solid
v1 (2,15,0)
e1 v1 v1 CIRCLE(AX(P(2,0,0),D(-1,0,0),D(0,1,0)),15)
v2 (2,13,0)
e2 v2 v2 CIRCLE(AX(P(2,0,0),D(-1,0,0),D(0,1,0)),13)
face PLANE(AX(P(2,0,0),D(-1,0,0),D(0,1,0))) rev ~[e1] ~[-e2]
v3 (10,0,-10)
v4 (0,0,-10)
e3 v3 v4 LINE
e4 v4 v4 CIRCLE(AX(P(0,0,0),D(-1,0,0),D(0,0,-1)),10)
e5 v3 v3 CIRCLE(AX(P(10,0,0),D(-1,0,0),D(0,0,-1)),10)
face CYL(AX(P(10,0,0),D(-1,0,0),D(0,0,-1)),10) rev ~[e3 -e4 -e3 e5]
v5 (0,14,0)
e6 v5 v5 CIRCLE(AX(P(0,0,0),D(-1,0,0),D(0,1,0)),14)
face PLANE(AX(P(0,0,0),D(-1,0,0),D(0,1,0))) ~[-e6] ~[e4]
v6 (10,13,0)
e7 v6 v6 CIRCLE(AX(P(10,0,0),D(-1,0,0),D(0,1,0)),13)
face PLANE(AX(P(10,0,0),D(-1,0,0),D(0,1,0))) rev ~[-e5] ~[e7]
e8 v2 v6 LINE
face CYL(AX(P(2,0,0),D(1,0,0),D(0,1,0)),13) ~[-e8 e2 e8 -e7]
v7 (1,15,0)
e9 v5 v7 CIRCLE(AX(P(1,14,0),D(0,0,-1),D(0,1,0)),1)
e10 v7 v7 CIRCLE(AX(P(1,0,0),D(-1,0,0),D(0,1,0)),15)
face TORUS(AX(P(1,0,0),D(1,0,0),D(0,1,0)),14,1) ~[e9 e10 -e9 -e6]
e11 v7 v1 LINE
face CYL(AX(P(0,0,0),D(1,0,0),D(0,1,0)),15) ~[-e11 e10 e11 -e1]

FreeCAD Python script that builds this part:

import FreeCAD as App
import Part
import Sketcher
from FreeCAD import Vector


def edges_at(feature, points):
    """Names of the edges that pass closest to the given points."""
    edges = feature.Shape.Edges
    near = lambda p: min(range(len(edges)), key=lambda i: edges[i].distToShape(Part.Vertex(*p))[0])
    return sorted({f"Edge{near(p) + 1}" for p in points})

doc = App.newDocument("Part")
body = doc.addObject("PartDesign::Body", "Body")

sketch1 = doc.addObject("Sketcher::SketchObject", "Sketch")
body.addObject(sketch1)
sketch1.AttachmentSupport = (doc.XY_Plane, [""])
sketch1.MapMode = "FlatFace"
sketch1.addGeometry([
    Part.LineSegment(Vector(0, 15, 0), Vector(0, 0, 0)),
    Part.LineSegment(Vector(0, 0, 0), Vector(10, 0, 0)),
    Part.LineSegment(Vector(10, 0, 0), Vector(10, 13, 0)),
    Part.LineSegment(Vector(10, 13, 0), Vector(2, 13, 0)),
    Part.LineSegment(Vector(2, 13, 0), Vector(2, 15, 0)),
    Part.LineSegment(Vector(2, 15, 0), Vector(0, 15, 0)),
], False)
sketch1.addConstraint([
    Sketcher.Constraint("Coincident", 0, 2, 1, 1),
    Sketcher.Constraint("Coincident", 1, 2, 2, 1),
    Sketcher.Constraint("Coincident", 2, 2, 3, 1),
    Sketcher.Constraint("Coincident", 3, 2, 4, 1),
    Sketcher.Constraint("Coincident", 4, 2, 5, 1),
    Sketcher.Constraint("Coincident", 5, 2, 0, 1),
    Sketcher.Constraint("Vertical", 0),
    Sketcher.Constraint("Horizontal", 1),
    Sketcher.Constraint("Vertical", 2),
    Sketcher.Constraint("Horizontal", 3),
    Sketcher.Constraint("Vertical", 4),
    Sketcher.Constraint("Horizontal", 5),
    Sketcher.Constraint("Coincident", 0, 2, -1, 1),
    Sketcher.Constraint("Equal", 5, 4),
    Sketcher.Constraint("DistanceX", 3, 2, 3, 1, 8.0),
    Sketcher.Constraint("DistanceX", 5, 2, 5, 1, 2.0),
    Sketcher.Constraint("DistanceY", 0, 2, 0, 1, 15.0),
])
revolution = doc.addObject("PartDesign::Revolution", "Revolution")
body.addObject(revolution)
revolution.Profile = sketch1
revolution.ReferenceAxis = (sketch1, ["H_Axis"])
revolution.Angle = 360
doc.recompute()

fillet = doc.addObject("PartDesign::Fillet", "Fillet")
body.addObject(fillet)
fillet.Base = (revolution, edges_at(revolution, [(0, -15, 0)]))
fillet.Radius = 1

sketch2 = doc.addObject("Sketcher::SketchObject", "Sketch001")
body.addObject(sketch2)
sketch2.AttachmentSupport = (doc.YZ_Plane, [""])
sketch2.MapMode = "FlatFace"
sketch2.AttachmentOffset = App.Placement(Vector(0, 0, 10), App.Rotation())
sketch2.addGeometry(Part.Circle(Vector(0, 0, 0), Vector(0, 0, 1), 10), False)
sketch2.addConstraint([
    Sketcher.Constraint("Coincident", 0, 3, -1, 1),
    Sketcher.Constraint("Diameter", 0, 20.0),
])
doc.recompute()
hole = doc.addObject("PartDesign::Hole", "Hole")
body.addObject(hole)
hole.Profile = sketch2
hole.ThreadType = "None"
hole.Diameter = 20
hole.DepthType = "Dimension"
hole.Depth = 10
hole.DrillPoint = "Flat"

doc.recompute()
